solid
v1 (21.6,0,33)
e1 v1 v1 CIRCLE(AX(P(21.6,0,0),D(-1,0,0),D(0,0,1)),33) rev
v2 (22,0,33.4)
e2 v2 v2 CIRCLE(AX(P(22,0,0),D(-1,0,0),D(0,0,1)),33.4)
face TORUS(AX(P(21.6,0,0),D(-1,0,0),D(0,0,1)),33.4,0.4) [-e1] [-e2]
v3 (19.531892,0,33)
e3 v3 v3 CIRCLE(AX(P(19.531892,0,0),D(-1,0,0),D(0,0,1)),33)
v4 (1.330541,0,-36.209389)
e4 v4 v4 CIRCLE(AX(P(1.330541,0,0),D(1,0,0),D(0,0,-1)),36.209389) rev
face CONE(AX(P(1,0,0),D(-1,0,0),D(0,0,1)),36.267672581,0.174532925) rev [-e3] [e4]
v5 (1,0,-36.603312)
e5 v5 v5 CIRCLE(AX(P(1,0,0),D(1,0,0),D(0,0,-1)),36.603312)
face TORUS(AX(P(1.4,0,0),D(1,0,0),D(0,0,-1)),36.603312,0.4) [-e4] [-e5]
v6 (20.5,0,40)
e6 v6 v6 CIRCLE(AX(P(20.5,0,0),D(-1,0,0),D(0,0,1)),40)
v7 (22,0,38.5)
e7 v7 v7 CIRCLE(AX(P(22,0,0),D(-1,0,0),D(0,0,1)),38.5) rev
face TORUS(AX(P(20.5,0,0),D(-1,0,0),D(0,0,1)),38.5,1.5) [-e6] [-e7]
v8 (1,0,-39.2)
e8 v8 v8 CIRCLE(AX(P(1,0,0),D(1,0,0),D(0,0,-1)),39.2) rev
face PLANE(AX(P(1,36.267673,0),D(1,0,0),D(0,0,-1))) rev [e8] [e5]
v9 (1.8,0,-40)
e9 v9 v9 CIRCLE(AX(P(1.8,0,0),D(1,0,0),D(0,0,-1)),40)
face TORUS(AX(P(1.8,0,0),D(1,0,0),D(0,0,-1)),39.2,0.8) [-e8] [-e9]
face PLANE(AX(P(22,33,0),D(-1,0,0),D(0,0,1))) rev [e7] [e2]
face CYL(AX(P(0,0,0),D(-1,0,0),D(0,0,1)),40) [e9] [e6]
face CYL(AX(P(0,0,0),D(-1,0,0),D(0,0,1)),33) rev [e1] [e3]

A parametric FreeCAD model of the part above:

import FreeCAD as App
import Part
import Sketcher

V = App.Vector
Q = App.Units.Quantity


def edges_at(feature, points):
    """Names of the edges that pass closest to the given points."""
    edges = feature.Shape.Edges
    near = lambda p: min(range(len(edges)), key=lambda i: edges[i].distToShape(Part.Vertex(*p))[0])
    return sorted({f"Edge{near(p) + 1}" for p in points})


def add_polygon(sketch, points):
    """Adds a closed chain of lines whose ends are joined by coincident constraints."""
    first, n = sketch.GeometryCount, len(points)
    for a, b in zip(points, points[1:] + points[:1]):
        sketch.addGeometry(Part.LineSegment(App.Vector(*a, 0), App.Vector(*b, 0)), False)
    for i in range(n):
        sketch.addConstraint(Sketcher.Constraint("Coincident", first + i, 2, first + (i + 1) % n, 1))

doc = App.newDocument("Part")
body = doc.addObject("PartDesign::Body", "Body")

# Sketch on XY plane
sketch1 = body.newObject("Sketcher::SketchObject", "Sketch")
sketch1.AttachmentSupport = (doc.getObject("XY_Plane"), [""])
sketch1.MapMode = "FlatFace"
add_polygon(sketch1, [(22, 33), (22, 40), (1, 40), (1, 36.3), (19.5, 33)])  # lines 0-4
sketch1.addConstraint([
    Sketcher.Constraint("Vertical", 0),
    Sketcher.Constraint("Horizontal", 1),
    Sketcher.Constraint("Vertical", 2),
    Sketcher.Constraint("Horizontal", 4),
    Sketcher.Constraint("DistanceX", 1, 2, 1, 1, Q("21 mm")),
    Sketcher.Constraint("DistanceY", 0, 1, 0, 2, Q("7 mm")),
    Sketcher.Constraint("Angle", 3, Q("-10 deg")),
    Sketcher.Constraint("DistanceX", -1, 1, 0, 2, Q("22 mm")),
    Sketcher.Constraint("DistanceY", -1, 1, 0, 2, Q("40 mm")),
    Sketcher.Constraint("DistanceX", 4, 1, 4, 2, Q("2.468108 mm")),
])
revolution = body.newObject("PartDesign::Revolution", "Revolution")
revolution.Profile = sketch1
revolution.ReferenceAxis = (sketch1, ["H_Axis"])
revolution.Angle = 360
doc.recompute()

fillet = body.newObject("PartDesign::Fillet", "Fillet")
fillet.Base = (revolution, edges_at(revolution, [(22, -40, 0)]))
fillet.Radius = 1.5
doc.recompute()

fillet2 = body.newObject("PartDesign::Fillet", "Fillet001")
fillet2.Base = (fillet, edges_at(fillet, [(1, -40, 0)]))
fillet2.Radius = 0.8
doc.recompute()

fillet3 = body.newObject("PartDesign::Fillet", "Fillet002")
fillet3.Base = (fillet2, edges_at(fillet2, [(22, -33, 0), (1, -36.268, 0)]))
fillet3.Radius = 0.4

doc.recompute()
